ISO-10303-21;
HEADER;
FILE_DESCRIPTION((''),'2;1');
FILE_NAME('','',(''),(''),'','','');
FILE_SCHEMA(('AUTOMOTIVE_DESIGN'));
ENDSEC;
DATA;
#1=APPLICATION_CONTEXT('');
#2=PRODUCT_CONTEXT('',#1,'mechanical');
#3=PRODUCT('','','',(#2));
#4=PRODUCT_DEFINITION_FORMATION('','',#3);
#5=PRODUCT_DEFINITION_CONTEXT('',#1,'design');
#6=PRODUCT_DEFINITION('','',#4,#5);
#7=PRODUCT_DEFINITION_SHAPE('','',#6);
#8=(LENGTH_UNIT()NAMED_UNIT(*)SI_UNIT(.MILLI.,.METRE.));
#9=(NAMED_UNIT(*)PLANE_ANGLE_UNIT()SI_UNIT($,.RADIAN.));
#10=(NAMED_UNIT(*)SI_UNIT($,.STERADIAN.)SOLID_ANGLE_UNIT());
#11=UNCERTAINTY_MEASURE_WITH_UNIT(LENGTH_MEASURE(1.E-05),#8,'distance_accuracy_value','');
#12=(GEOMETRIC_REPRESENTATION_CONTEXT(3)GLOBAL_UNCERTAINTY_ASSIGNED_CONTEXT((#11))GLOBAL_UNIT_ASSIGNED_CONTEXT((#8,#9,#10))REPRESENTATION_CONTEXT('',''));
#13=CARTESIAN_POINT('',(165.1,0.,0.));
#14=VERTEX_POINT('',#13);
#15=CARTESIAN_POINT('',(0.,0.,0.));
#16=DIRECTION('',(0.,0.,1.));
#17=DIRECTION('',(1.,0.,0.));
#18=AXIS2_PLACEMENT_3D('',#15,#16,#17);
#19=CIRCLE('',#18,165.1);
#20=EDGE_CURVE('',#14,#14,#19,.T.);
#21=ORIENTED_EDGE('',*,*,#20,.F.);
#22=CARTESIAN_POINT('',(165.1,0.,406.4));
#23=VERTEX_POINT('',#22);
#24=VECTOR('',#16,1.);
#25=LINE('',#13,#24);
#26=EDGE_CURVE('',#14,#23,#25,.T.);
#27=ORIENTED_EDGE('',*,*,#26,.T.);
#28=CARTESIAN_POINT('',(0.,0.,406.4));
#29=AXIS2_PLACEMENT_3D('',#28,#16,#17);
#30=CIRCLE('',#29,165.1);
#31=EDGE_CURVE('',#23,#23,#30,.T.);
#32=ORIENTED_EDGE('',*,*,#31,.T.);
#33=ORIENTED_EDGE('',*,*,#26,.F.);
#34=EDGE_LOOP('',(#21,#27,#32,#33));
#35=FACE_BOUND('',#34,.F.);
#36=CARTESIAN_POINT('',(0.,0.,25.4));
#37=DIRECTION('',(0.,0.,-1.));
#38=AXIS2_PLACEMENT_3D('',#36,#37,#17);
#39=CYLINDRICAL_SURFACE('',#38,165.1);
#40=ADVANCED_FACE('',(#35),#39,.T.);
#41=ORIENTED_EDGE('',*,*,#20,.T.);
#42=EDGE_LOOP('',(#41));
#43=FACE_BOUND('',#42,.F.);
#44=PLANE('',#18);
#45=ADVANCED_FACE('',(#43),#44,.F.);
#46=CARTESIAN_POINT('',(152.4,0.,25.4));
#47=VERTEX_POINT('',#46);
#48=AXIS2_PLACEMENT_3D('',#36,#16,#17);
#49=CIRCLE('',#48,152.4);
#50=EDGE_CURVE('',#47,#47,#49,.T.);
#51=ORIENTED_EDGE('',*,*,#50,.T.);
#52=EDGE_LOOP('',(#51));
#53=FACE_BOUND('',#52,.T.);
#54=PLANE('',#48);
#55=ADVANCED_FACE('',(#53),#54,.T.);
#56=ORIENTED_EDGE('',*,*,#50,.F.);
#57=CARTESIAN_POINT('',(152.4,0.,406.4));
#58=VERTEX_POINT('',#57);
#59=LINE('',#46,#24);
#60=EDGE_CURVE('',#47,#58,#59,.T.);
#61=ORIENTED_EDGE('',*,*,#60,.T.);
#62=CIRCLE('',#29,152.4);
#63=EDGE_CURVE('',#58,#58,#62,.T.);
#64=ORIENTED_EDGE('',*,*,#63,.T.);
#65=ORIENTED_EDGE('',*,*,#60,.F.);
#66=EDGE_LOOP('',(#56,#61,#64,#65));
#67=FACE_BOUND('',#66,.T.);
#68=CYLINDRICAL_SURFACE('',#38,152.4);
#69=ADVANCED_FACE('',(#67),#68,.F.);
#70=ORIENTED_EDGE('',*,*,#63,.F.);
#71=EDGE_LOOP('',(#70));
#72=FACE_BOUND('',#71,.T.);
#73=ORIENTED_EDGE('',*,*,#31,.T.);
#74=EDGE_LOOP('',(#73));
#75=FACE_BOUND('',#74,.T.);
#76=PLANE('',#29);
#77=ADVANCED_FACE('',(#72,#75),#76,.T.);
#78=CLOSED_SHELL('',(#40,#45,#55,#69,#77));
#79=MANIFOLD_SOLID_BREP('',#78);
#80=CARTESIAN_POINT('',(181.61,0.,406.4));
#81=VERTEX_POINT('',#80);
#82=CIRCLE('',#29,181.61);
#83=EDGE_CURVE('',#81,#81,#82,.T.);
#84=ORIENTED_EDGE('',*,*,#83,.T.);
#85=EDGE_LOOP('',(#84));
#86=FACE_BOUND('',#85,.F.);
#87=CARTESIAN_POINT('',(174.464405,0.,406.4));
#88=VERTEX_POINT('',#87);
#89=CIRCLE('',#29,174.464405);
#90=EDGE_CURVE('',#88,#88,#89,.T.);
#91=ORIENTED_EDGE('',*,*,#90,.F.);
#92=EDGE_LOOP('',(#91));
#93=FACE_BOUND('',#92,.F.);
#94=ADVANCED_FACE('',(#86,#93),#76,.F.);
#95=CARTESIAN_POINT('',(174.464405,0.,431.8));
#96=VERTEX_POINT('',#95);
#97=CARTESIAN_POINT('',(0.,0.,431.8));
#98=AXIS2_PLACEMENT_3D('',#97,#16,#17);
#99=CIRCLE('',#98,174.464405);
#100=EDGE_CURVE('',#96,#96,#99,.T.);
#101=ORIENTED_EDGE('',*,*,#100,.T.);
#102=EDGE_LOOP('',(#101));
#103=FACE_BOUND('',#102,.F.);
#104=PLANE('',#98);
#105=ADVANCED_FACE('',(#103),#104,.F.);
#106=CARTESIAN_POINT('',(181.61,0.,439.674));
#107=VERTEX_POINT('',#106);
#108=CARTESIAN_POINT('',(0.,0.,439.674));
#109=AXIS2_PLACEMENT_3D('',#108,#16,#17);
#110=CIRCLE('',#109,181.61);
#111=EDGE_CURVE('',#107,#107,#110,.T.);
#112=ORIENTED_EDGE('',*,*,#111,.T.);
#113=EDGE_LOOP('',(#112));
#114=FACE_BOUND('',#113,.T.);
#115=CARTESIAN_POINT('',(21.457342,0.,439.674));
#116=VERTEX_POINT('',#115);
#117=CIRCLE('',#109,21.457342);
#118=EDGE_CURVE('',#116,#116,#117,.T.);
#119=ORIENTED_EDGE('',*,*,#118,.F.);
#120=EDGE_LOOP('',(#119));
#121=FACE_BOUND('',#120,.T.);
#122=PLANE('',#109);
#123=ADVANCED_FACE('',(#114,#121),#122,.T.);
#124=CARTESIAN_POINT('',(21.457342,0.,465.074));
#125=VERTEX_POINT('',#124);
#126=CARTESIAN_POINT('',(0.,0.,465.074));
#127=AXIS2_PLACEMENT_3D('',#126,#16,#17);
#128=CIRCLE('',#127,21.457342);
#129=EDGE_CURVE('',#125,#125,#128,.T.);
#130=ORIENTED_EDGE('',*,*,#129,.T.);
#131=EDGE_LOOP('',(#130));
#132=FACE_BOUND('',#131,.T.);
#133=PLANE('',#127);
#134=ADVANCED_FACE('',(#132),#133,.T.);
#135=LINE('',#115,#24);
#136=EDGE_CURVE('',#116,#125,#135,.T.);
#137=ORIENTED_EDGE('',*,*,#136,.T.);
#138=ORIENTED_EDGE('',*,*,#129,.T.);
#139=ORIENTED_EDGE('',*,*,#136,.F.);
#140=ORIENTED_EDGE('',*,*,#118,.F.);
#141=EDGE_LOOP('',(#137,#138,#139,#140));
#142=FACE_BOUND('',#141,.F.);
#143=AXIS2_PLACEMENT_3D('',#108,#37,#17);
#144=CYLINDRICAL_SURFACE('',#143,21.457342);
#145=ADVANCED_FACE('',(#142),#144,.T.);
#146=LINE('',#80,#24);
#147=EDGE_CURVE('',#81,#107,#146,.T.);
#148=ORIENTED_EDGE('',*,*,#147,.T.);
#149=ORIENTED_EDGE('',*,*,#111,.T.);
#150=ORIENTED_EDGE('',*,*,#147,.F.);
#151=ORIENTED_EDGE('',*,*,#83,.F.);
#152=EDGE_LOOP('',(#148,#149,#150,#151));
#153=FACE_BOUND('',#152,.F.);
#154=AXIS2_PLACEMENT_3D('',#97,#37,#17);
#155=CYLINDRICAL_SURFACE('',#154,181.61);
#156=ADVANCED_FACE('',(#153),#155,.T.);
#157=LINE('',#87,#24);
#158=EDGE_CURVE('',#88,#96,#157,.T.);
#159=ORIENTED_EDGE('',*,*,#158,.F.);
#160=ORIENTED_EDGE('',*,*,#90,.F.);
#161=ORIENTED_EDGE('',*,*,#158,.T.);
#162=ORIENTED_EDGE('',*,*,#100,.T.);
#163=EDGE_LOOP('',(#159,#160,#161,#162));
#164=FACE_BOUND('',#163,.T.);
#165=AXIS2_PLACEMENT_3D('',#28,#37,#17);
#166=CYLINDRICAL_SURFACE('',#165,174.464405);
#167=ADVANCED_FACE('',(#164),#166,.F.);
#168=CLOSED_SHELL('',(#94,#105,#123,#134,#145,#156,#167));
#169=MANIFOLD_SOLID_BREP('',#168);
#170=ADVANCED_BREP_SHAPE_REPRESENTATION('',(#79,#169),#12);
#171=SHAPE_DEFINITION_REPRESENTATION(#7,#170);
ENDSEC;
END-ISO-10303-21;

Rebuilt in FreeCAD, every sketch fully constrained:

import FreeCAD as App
import Part
import Sketcher

V = App.Vector
Q = App.Units.Quantity

doc = App.newDocument("Part")
body = doc.addObject("PartDesign::Body", "Body")

sketch1 = doc.addObject("Sketcher::SketchObject", "Sketch")
body.addObject(sketch1)
sketch1.AttachmentSupport = (doc.XY_Plane, [""])
sketch1.MapMode = "FlatFace"
sketch1.addGeometry(Part.Circle(V(0, 0, 0), V(0, 0, 1), 165.1), False)
sketch1.addConstraint([
    Sketcher.Constraint("Coincident", 0, 3, -1, 1),
    Sketcher.Constraint("Diameter", 0, Q("13 in")),
])
pad1 = doc.addObject("PartDesign::Pad", "Pad")
body.addObject(pad1)
pad1.Profile = sketch1
pad1.Length = Q("1 in")

sketch2 = doc.addObject("Sketcher::SketchObject", "Sketch001")
body.addObject(sketch2)
sketch2.AttachmentSupport = (doc.XY_Plane, [""])
sketch2.MapMode = "FlatFace"
sketch2.AttachmentOffset = App.Placement(V(0, 0, 1 * 25.4), App.Rotation())
sketch2.addGeometry([
    Part.Circle(V(0, 0, 0), V(0, 0, 1), 165.1),
    Part.Circle(V(0, 0, 0), V(0, 0, 1), 152.4),
], False)
sketch2.addConstraint([
    Sketcher.Constraint("Coincident", 0, 3, -1, 1),
    Sketcher.Constraint("Coincident", 1, 3, -1, 1),
    Sketcher.Constraint("Diameter", 0, Q("13 in")),
    Sketcher.Constraint("Diameter", 1, Q("12 in")),
])
pad2 = doc.addObject("PartDesign::Pad", "Pad001")
body.addObject(pad2)
pad2.Profile = sketch2
pad2.Length = Q("15 in")
body2 = doc.addObject("PartDesign::Body", "Body001")

sketch3 = doc.addObject("Sketcher::SketchObject", "Sketch002")
body2.addObject(sketch3)
sketch3.AttachmentSupport = (doc.getObject("XY_Plane001"), [""])
sketch3.MapMode = "FlatFace"
sketch3.AttachmentOffset = App.Placement(V(0, 0, 16 * 25.4), App.Rotation())
sketch3.addGeometry([
    Part.Circle(V(0, 0, 0), V(0, 0, 1), 181.61),
    Part.Circle(V(0, 0, 0), V(0, 0, 1), 174.464405),
], False)
sketch3.addConstraint([
    Sketcher.Constraint("Coincident", 0, 3, -1, 1),
    Sketcher.Constraint("Coincident", 1, 3, -1, 1),
    Sketcher.Constraint("Diameter", 0, Q("14.3 in")),
    Sketcher.Constraint("Diameter", 1, Q("348.92881 mm")),
])
pad3 = doc.addObject("PartDesign::Pad", "Pad002")
body2.addObject(pad3)
pad3.Profile = sketch3
pad3.Length = Q("1 in")

sketch4 = doc.addObject("Sketcher::SketchObject", "Sketch003")
body2.addObject(sketch4)
sketch4.AttachmentSupport = (doc.getObject("XY_Plane001"), [""])
sketch4.MapMode = "FlatFace"
sketch4.AttachmentOffset = App.Placement(V(0, 0, 17 * 25.4), App.Rotation())
sketch4.addGeometry(Part.Circle(V(0, 0, 0), V(0, 0, 1), 181.61), False)
sketch4.addConstraint([
    Sketcher.Constraint("Coincident", 0, 3, -1, 1),
    Sketcher.Constraint("Diameter", 0, Q("14.3 in")),
])
pad4 = doc.addObject("PartDesign::Pad", "Pad003")
body2.addObject(pad4)
pad4.Profile = sketch4
pad4.Length = Q("0.31 in")

sketch5 = doc.addObject("Sketcher::SketchObject", "Sketch004")
body2.addObject(sketch5)
sketch5.AttachmentSupport = (doc.getObject("XY_Plane001"), [""])
sketch5.MapMode = "FlatFace"
sketch5.AttachmentOffset = App.Placement(V(0, 0, 17.31 * 25.4), App.Rotation())
sketch5.addGeometry(Part.Circle(V(0, 0, 0), V(0, 0, 1), 21.457342), False)
sketch5.addConstraint([
    Sketcher.Constraint("Coincident", 0, 3, -1, 1),
    Sketcher.Constraint("Diameter", 0, Q("42.914684 mm")),
])
pad5 = doc.addObject("PartDesign::Pad", "Pad004")
body2.addObject(pad5)
pad5.Profile = sketch5
pad5.Length = Q("1 in")

doc.recompute()
